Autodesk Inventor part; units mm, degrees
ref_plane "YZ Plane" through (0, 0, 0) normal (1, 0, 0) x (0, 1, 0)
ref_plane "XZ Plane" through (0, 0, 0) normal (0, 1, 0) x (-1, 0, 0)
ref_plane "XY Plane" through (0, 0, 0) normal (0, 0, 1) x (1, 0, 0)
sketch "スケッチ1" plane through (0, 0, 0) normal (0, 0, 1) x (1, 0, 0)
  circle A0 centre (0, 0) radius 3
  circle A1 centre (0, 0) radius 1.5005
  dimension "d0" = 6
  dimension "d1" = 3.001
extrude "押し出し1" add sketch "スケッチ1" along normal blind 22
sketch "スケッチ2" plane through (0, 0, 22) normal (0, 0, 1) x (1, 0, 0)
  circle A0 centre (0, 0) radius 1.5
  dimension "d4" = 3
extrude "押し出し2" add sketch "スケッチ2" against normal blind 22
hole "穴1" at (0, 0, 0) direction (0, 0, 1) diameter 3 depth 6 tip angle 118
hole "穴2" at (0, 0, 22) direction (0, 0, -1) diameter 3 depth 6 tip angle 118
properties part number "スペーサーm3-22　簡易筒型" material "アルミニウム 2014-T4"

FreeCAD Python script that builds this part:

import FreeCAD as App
import Part
import Sketcher

V = App.Vector

doc = App.newDocument("Part")
params = doc.addObject("Spreadsheet::Sheet", "Params")
for row, (alias, value) in enumerate([
    ("sketch1_diameter", "6 mm"),
    ("pad1_length", "22 mm"),
    ("sketch2_diameter", "3 mm"),
    ("pad2_length", "22 mm"),
    ("sketch3_diameter", "3 mm"),
    ("hole_diameter", "3 mm"),
    ("hole_depth", "6 mm"),
    ("sketch4_diameter", "3 mm"),
    ("hole2_diameter", "3 mm"),
    ("hole2_depth", "6 mm"),
], start=1):
    params.set(f"A{row}", alias)
    params.set(f"B{row}", "=" + value)
    params.setAlias(f"B{row}", alias)

body = doc.addObject("PartDesign::Body", "Body")
body.AllowCompound = True

sketch1 = doc.addObject("Sketcher::SketchObject", "Sketch")
body.addObject(sketch1)
sketch1.AttachmentSupport = (doc.XY_Plane, [""])
sketch1.MapMode = "FlatFace"
sketch1.addGeometry(Part.Circle(V(0, 0, 0), V(0, 0, 1), 3), False)
sketch1.addGeometry(Part.Circle(V(0, 0, 0), V(0, 0, 1), 1.5), False)
sketch1.addConstraint(Sketcher.Constraint("Coincident", 0, 3, -1, 1))
sketch1.addConstraint(Sketcher.Constraint("Coincident", 1, 3, -1, 1))
sketch1.addConstraint(Sketcher.Constraint("Diameter", 0, 6.0))
sketch1.addConstraint(Sketcher.Constraint("Diameter", 1, 3.001))
sketch1.setExpression("Constraints[2]", "Params.sketch1_diameter")
pad1 = doc.addObject("PartDesign::Pad", "Pad")
body.addObject(pad1)
pad1.Profile = sketch1
pad1.setExpression("Length", "Params.pad1_length")

sketch2 = doc.addObject("Sketcher::SketchObject", "Sketch001")
body.addObject(sketch2)
sketch2.AttachmentSupport = (doc.XY_Plane, [""])
sketch2.MapMode = "FlatFace"
sketch2.AttachmentOffset = App.Placement(V(0, 0, 22), App.Rotation())
sketch2.addGeometry(Part.Circle(V(0, 0, 0), V(0, 0, 1), 1.5), False)
sketch2.addConstraint(Sketcher.Constraint("Coincident", 0, 3, -1, 1))
sketch2.addConstraint(Sketcher.Constraint("Diameter", 0, 3.0))
sketch2.setExpression("Constraints[1]", "Params.sketch2_diameter")
pad2 = doc.addObject("PartDesign::Pad", "Pad001")
body.addObject(pad2)
pad2.Profile = sketch2
pad2.setExpression("Length", "Params.pad2_length")
pad2.Reversed = True

sketch3 = doc.addObject("Sketcher::SketchObject", "Sketch002")
body.addObject(sketch3)
sketch3.AttachmentSupport = (doc.XY_Plane, [""])
sketch3.MapMode = "FlatFace"
sketch3.addGeometry(Part.Circle(V(0, 0, 0), V(0, 0, 1), 1.5), False)
sketch3.addConstraint(Sketcher.Constraint("Coincident", 0, 3, -1, 1))
sketch3.addConstraint(Sketcher.Constraint("Diameter", 0, 3.0))
sketch3.setExpression("Constraints[1]", "Params.sketch3_diameter")
doc.recompute()
hole = doc.addObject("PartDesign::Hole", "Hole")
body.addObject(hole)
hole.Profile = sketch3
hole.ThreadType = "None"
hole.setExpression("Diameter", "Params.hole_diameter")
hole.DepthType = "Dimension"
hole.setExpression("Depth", "Params.hole_depth")
hole.DrillPoint = "Angled"
hole.DrillPointAngle = 118
hole.Reversed = True

sketch4 = doc.addObject("Sketcher::SketchObject", "Sketch003")
body.addObject(sketch4)
sketch4.AttachmentSupport = (doc.XY_Plane, [""])
sketch4.MapMode = "FlatFace"
sketch4.AttachmentOffset = App.Placement(V(0, 0, 22), App.Rotation())
sketch4.addGeometry(Part.Circle(V(0, 0, 0), V(0, 0, 1), 1.5), False)
sketch4.addConstraint(Sketcher.Constraint("Coincident", 0, 3, -1, 1))
sketch4.addConstraint(Sketcher.Constraint("Diameter", 0, 3.0))
sketch4.setExpression("Constraints[1]", "Params.sketch4_diameter")
doc.recompute()
hole2 = doc.addObject("PartDesign::Hole", "Hole001")
body.addObject(hole2)
hole2.Profile = sketch4
hole2.ThreadType = "None"
hole2.setExpression("Diameter", "Params.hole2_diameter")
hole2.DepthType = "Dimension"
hole2.setExpression("Depth", "Params.hole2_depth")
hole2.DrillPoint = "Angled"
hole2.DrillPointAngle = 118

doc.recompute()
